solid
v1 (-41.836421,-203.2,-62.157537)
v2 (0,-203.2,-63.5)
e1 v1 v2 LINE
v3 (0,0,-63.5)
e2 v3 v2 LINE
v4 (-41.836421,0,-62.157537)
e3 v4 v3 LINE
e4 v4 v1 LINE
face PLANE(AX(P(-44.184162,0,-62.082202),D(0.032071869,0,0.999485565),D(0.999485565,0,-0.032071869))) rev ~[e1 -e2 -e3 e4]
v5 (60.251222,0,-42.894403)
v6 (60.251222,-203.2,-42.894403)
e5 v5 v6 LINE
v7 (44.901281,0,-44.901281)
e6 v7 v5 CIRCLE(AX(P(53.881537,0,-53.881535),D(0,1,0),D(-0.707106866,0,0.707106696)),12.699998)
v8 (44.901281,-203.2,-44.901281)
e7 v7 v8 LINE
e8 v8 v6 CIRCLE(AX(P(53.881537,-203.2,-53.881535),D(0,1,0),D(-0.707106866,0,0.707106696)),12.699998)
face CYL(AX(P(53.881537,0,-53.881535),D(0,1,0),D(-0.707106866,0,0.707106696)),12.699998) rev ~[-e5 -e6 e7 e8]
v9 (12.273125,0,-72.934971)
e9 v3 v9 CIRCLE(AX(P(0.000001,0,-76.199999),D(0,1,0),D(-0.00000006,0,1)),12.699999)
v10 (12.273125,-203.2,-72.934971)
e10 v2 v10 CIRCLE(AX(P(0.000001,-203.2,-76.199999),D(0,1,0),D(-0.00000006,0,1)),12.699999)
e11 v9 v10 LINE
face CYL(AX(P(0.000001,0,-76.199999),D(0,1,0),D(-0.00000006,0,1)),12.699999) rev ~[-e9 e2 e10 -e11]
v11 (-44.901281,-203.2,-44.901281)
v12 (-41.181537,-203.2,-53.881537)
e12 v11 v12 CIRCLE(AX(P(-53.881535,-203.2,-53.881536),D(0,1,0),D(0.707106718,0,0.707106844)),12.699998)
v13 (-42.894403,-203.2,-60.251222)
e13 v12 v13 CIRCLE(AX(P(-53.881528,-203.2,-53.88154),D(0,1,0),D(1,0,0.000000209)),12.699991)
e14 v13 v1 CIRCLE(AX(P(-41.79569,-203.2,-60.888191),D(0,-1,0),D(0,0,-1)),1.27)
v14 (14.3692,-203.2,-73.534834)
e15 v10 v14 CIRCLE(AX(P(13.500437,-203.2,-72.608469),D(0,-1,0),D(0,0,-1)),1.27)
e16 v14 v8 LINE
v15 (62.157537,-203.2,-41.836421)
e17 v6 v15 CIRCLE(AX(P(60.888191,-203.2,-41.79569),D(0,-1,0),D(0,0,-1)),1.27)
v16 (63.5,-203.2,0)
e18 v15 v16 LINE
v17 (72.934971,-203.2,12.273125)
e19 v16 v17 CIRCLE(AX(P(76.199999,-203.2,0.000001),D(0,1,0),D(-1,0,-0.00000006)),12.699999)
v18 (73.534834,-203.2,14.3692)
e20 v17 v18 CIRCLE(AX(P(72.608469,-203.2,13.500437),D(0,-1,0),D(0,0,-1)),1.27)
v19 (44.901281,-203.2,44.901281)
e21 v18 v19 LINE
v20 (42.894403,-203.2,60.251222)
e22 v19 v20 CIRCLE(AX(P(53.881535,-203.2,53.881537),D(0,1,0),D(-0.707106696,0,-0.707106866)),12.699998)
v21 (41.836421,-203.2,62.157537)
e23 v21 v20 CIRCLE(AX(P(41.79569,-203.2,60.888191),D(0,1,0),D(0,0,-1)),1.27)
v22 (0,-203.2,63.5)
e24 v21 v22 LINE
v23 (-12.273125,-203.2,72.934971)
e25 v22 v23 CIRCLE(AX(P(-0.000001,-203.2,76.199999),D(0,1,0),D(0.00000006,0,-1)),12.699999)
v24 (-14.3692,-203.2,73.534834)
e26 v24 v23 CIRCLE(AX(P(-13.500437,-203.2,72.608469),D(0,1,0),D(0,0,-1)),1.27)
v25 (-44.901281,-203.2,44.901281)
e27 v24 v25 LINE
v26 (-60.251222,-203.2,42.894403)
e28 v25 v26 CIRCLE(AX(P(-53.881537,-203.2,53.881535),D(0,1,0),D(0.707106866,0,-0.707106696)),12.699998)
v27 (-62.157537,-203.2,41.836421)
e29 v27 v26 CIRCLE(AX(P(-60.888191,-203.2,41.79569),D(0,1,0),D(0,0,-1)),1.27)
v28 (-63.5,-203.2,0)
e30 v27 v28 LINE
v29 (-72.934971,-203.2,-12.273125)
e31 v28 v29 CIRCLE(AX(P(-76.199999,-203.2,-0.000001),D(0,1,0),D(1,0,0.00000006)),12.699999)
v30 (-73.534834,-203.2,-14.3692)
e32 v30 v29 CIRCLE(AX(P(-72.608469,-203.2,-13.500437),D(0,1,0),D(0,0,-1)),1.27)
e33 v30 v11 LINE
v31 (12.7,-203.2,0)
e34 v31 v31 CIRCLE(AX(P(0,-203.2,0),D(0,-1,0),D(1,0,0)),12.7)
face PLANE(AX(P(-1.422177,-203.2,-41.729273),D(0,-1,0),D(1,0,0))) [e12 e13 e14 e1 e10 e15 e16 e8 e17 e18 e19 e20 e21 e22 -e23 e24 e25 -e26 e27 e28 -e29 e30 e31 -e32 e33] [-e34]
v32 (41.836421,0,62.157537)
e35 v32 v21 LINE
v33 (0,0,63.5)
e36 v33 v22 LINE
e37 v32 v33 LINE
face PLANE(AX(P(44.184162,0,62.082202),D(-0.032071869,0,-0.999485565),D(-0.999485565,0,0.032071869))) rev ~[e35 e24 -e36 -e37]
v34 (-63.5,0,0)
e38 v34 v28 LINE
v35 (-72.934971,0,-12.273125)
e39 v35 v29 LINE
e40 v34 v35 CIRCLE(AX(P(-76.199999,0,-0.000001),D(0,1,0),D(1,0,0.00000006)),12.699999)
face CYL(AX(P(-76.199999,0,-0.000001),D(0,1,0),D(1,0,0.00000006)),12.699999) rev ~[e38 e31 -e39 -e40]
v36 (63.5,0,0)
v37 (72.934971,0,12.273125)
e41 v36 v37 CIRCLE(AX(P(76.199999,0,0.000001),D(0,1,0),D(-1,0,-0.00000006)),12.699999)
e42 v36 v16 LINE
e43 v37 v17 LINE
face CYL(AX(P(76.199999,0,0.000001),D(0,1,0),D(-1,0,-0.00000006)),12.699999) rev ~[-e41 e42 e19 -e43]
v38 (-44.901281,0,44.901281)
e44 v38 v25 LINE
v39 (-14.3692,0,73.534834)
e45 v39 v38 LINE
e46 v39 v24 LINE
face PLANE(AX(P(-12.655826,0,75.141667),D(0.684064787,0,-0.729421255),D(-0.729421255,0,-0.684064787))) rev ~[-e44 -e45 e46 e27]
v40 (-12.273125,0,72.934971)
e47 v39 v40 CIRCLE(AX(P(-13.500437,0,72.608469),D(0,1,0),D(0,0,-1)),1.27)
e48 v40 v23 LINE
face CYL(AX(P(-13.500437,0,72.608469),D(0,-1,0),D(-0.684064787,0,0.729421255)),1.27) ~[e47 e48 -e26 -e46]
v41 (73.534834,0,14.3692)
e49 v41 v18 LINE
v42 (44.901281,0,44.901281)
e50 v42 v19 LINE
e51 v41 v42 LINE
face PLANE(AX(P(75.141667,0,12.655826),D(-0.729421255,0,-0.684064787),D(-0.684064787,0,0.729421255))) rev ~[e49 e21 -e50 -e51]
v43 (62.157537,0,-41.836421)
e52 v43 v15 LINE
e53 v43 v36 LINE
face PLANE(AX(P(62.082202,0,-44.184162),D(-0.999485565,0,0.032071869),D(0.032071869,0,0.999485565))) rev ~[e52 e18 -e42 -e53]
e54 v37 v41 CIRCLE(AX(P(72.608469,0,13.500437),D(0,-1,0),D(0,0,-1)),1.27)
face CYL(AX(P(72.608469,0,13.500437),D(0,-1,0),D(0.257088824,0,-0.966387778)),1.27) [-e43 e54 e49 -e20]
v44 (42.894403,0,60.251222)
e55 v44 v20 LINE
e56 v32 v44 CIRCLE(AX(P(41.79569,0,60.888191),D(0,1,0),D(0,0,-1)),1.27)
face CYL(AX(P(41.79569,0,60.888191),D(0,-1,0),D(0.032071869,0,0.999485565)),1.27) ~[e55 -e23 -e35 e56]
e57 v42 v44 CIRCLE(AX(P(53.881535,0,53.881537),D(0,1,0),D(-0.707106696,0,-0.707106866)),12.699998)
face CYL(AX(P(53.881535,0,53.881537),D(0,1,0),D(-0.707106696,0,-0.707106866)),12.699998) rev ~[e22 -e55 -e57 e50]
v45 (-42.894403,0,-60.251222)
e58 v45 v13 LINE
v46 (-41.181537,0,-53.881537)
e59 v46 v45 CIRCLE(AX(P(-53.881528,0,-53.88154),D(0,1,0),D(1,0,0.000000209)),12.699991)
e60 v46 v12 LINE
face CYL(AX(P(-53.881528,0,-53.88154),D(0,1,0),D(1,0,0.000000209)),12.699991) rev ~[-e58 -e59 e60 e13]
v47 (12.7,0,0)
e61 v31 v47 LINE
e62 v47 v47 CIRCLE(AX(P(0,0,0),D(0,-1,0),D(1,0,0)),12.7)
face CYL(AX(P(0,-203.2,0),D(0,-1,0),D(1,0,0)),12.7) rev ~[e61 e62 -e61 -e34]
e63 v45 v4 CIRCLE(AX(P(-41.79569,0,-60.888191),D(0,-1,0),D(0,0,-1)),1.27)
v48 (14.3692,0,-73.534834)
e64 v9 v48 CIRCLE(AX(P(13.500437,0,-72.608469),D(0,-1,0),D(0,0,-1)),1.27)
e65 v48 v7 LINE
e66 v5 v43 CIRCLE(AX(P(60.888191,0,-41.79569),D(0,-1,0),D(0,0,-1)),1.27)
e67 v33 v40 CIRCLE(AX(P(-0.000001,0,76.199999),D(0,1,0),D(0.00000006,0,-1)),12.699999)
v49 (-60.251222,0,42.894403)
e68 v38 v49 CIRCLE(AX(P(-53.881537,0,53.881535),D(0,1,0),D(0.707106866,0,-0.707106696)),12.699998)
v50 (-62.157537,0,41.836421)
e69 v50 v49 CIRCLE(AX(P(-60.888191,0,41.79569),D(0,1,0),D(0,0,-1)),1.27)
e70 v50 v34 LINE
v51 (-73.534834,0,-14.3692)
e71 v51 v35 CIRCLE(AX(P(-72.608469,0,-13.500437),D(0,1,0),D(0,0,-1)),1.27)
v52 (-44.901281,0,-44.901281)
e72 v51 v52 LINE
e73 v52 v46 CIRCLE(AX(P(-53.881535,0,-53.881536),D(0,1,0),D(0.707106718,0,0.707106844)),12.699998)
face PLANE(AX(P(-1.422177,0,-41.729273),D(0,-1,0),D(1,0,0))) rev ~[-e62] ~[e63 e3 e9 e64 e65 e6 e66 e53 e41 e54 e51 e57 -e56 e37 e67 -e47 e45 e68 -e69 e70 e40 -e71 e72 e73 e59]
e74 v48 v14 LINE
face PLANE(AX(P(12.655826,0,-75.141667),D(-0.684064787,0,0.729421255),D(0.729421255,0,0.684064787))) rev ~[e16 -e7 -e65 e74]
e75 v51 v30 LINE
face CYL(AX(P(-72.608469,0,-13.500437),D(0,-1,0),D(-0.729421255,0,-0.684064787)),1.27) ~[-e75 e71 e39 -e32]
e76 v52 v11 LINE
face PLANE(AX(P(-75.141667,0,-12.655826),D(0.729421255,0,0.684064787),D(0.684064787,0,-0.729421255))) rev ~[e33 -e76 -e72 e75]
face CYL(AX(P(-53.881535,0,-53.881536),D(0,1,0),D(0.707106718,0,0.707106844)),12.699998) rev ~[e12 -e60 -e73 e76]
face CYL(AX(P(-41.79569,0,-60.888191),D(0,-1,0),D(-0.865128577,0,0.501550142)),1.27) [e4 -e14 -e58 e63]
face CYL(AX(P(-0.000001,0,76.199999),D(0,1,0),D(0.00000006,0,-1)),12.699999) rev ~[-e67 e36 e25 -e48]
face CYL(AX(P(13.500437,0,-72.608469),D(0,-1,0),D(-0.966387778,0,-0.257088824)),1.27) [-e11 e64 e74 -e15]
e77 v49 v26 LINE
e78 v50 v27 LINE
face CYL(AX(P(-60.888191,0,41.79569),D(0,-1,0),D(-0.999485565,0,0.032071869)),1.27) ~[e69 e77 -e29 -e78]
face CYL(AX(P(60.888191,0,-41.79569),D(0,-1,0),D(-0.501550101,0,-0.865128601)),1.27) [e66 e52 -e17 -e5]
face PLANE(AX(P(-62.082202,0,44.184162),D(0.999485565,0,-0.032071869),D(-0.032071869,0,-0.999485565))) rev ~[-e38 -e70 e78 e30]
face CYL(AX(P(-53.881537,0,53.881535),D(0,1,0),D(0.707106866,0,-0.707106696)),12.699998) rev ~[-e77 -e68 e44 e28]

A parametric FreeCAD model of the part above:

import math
import FreeCAD as App
import Part
import Sketcher
from FreeCAD import Vector
Q = App.Units.Quantity


def edges_at(feature, points):
    """Names of the edges that pass closest to the given points."""
    edges = feature.Shape.Edges
    near = lambda p: min(range(len(edges)), key=lambda i: edges[i].distToShape(Part.Vertex(*p))[0])
    return sorted({f"Edge{near(p) + 1}" for p in points})

doc = App.newDocument("Part")
body = doc.addObject("PartDesign::Body", "Body")

# Sketch on XZ plane
sketch1 = doc.addObject("Sketcher::SketchObject", "Sketch")
body.addObject(sketch1)
sketch1.AttachmentSupport = (doc.XZ_Plane, [""])
sketch1.MapMode = "FlatFace"
sketch1.addGeometry([
    Part.ArcOfCircle(Part.Circle(Vector(-53.881535, -53.881536, 0), Vector(0, 0, 1), 12.699998), math.radians(-0.000003), math.radians(45.000005)),  # 0
    Part.ArcOfCircle(Part.Circle(Vector(-53.881528, -53.88154, 0), Vector(0, 0, 1), 12.699991), math.radians(-40.219824), math.radians(0.000012)),  # 1
    Part.LineSegment(Vector(-44.184162, -62.082202, 0), Vector(0, -63.5, 0)),  # 2
    Part.ArcOfCircle(Part.Circle(Vector(0.000001, -76.199999, 0), Vector(0, 0, 1), 12.699999), math.radians(4.780187), math.radians(90.000003)),  # 3
    Part.LineSegment(Vector(12.655826, -75.141667, 0), Vector(44.901281, -44.901281, 0)),  # 4
    Part.ArcOfCircle(Part.Circle(Vector(53.881537, -53.881535, 0), Vector(0, 0, 1), 12.699998), math.radians(49.780186), math.radians(135.000007)),  # 5
    Part.LineSegment(Vector(62.082202, -44.184162, 0), Vector(63.5, 0, 0)),  # 6
    Part.ArcOfCircle(Part.Circle(Vector(76.199999, 0.000001, 0), Vector(0, 0, 1), 12.699999), math.radians(94.780187), math.radians(180.000003)),  # 7
    Part.LineSegment(Vector(75.141667, 12.655826, 0), Vector(44.901281, 44.901281, 0)),  # 8
    Part.ArcOfCircle(Part.Circle(Vector(53.881535, 53.881537, 0), Vector(0, 0, 1), 12.699998), math.radians(139.780186), math.radians(225.000007)),  # 9
    Part.LineSegment(Vector(44.184162, 62.082202, 0), Vector(0, 63.5, 0)),  # 10
    Part.ArcOfCircle(Part.Circle(Vector(-0.000001, 76.199999, 0), Vector(0, 0, 1), 12.699999), math.radians(-175.219813), math.radians(-89.999997)),  # 11
    Part.LineSegment(Vector(-12.655826, 75.141667, 0), Vector(-44.901281, 44.901281, 0)),  # 12
    Part.ArcOfCircle(Part.Circle(Vector(-53.881537, 53.881535, 0), Vector(0, 0, 1), 12.699998), math.radians(-130.219814), math.radians(-44.999993)),  # 13
    Part.LineSegment(Vector(-62.082202, 44.184162, 0), Vector(-63.5, 0, 0)),  # 14
    Part.ArcOfCircle(Part.Circle(Vector(-76.199999, -0.000001, 0), Vector(0, 0, 1), 12.699999), math.radians(-85.219813), math.radians(0.000003)),  # 15
    Part.LineSegment(Vector(-75.141667, -12.655826, 0), Vector(-44.901281, -44.901281, 0)),  # 16
], False)
sketch1.addConstraint([
    Sketcher.Constraint("Tangent", 0, 1, 1, 2),
    Sketcher.Constraint("Coincident", 1, 1, 2, 1),
    Sketcher.Constraint("Coincident", 2, 2, 3, 2),
    Sketcher.Constraint("Coincident", 3, 1, 4, 1),
    Sketcher.Constraint("Coincident", 4, 2, 5, 2),
    Sketcher.Constraint("Coincident", 5, 1, 6, 1),
    Sketcher.Constraint("Coincident", 6, 2, 7, 2),
    Sketcher.Constraint("Coincident", 7, 1, 8, 1),
    Sketcher.Constraint("Coincident", 8, 2, 9, 2),
    Sketcher.Constraint("Coincident", 9, 1, 10, 1),
    Sketcher.Constraint("Coincident", 10, 2, 11, 2),
    Sketcher.Constraint("Coincident", 11, 1, 12, 1),
    Sketcher.Constraint("Coincident", 12, 2, 13, 2),
    Sketcher.Constraint("Coincident", 13, 1, 14, 1),
    Sketcher.Constraint("Coincident", 14, 2, 15, 2),
    Sketcher.Constraint("Coincident", 15, 1, 16, 1),
    Sketcher.Constraint("Coincident", 16, 2, 0, 2),
    Sketcher.Constraint("Equal", 0, 3),
    Sketcher.Constraint("Equal", 3, 5),
    Sketcher.Constraint("Equal", 5, 7),
    Sketcher.Constraint("Equal", 7, 9),
    Sketcher.Constraint("Equal", 9, 11),
    Sketcher.Constraint("Equal", 11, 13),
    Sketcher.Constraint("Equal", 13, 15),
    Sketcher.Constraint("Symmetric", 0, 3, 9, 3, -1, 1),
    Sketcher.Constraint("Symmetric", 3, 3, 11, 3, -1, 1),
    Sketcher.Constraint("Symmetric", 5, 3, 13, 3, -1, 1),
    Sketcher.Constraint("Symmetric", 7, 3, 15, 3, -1, 1),
    Sketcher.Constraint("Symmetric", 1, 1, 9, 1, -1, 1),
    Sketcher.Constraint("Symmetric", 0, 3, 5, 3, -2),
    Sketcher.Constraint("PointOnObject", 3, 3, -2),
    Sketcher.Constraint("PointOnObject", 7, 3, -1),
    Sketcher.Constraint("PointOnObject", 2, 2, -2),
    Sketcher.Constraint("PointOnObject", 6, 2, -1),
    Sketcher.Constraint("PointOnObject", 10, 2, -2),
    Sketcher.Constraint("PointOnObject", 14, 2, -1),
    Sketcher.Constraint("Perpendicular", 2, 6),
    Sketcher.Constraint("Perpendicular", 4, 8),
    Sketcher.Constraint("Perpendicular", 8, 12),
    Sketcher.Constraint("Perpendicular", 10, 14),
    Sketcher.Constraint("Perpendicular", 12, 16),
    Sketcher.Constraint("Horizontal", 8, 2, 12, 2),
    Sketcher.Constraint("Horizontal", 4, 2, 16, 2),
    Sketcher.Constraint("Vertical", 4, 2, 8, 2),
    Sketcher.Constraint("Equal", 2, 4),
    Sketcher.Constraint("Equal", 4, 6),
    Sketcher.Constraint("Equal", 6, 8),
    Sketcher.Constraint("Radius", 0, Q("0.4999999 in")),
    Sketcher.Constraint("DistanceY", 3, 3, -1, 1, Q("3 in")),
    Sketcher.Constraint("DistanceX", -1, 1, 7, 3, Q("3 in")),
    Sketcher.Constraint("DistanceY", 1, 1, -1, 1, Q("62.082202 mm")),
    Sketcher.Constraint("DistanceY", 1, 3, -1, 1, Q("53.88154 mm")),
    Sketcher.Constraint("DistanceY", 3, 1, 0, 1, Q("21.26013 mm")),
])
pad1 = doc.addObject("PartDesign::Pad", "Pad")
body.addObject(pad1)
pad1.Profile = sketch1
pad1.Length = Q("8 in")

# Sketch on XZ plane
sketch2 = doc.addObject("Sketcher::SketchObject", "Sketch001")
body.addObject(sketch2)
sketch2.AttachmentSupport = (doc.XZ_Plane, [""])
sketch2.MapMode = "FlatFace"
sketch2.AttachmentOffset = App.Placement(Vector(0, 0, 8 * 25.4), App.Rotation())
sketch2.addGeometry(Part.Circle(Vector(0, 0, 0), Vector(0, 0, 1), 12.7), False)
sketch2.addConstraint([
    Sketcher.Constraint("Coincident", 0, 3, -1, 1),
    Sketcher.Constraint("Diameter", 0, Q("1 in")),
])
pocket1 = doc.addObject("PartDesign::Pocket", "Pocket")
body.addObject(pocket1)
pocket1.Profile = sketch2
pocket1.Type = "ThroughAll"
doc.recompute()

fillet = doc.addObject("PartDesign::Fillet", "Fillet")
body.addObject(fillet)
fillet.Base = (pocket1, edges_at(pocket1, [
    (-12.656, -101.6, 75.142),
    (44.184, -101.6, 62.082),
    (-62.082, -101.6, 44.184),
    (-75.142, -101.6, -12.656),
    (-44.184, -101.6, -62.082),
    (12.656, -101.6, -75.142),
    (62.082, -101.6, -44.184),
    (75.142, -101.6, 12.656),
]))
fillet.Radius = Q("0.05 in")

doc.recompute()
